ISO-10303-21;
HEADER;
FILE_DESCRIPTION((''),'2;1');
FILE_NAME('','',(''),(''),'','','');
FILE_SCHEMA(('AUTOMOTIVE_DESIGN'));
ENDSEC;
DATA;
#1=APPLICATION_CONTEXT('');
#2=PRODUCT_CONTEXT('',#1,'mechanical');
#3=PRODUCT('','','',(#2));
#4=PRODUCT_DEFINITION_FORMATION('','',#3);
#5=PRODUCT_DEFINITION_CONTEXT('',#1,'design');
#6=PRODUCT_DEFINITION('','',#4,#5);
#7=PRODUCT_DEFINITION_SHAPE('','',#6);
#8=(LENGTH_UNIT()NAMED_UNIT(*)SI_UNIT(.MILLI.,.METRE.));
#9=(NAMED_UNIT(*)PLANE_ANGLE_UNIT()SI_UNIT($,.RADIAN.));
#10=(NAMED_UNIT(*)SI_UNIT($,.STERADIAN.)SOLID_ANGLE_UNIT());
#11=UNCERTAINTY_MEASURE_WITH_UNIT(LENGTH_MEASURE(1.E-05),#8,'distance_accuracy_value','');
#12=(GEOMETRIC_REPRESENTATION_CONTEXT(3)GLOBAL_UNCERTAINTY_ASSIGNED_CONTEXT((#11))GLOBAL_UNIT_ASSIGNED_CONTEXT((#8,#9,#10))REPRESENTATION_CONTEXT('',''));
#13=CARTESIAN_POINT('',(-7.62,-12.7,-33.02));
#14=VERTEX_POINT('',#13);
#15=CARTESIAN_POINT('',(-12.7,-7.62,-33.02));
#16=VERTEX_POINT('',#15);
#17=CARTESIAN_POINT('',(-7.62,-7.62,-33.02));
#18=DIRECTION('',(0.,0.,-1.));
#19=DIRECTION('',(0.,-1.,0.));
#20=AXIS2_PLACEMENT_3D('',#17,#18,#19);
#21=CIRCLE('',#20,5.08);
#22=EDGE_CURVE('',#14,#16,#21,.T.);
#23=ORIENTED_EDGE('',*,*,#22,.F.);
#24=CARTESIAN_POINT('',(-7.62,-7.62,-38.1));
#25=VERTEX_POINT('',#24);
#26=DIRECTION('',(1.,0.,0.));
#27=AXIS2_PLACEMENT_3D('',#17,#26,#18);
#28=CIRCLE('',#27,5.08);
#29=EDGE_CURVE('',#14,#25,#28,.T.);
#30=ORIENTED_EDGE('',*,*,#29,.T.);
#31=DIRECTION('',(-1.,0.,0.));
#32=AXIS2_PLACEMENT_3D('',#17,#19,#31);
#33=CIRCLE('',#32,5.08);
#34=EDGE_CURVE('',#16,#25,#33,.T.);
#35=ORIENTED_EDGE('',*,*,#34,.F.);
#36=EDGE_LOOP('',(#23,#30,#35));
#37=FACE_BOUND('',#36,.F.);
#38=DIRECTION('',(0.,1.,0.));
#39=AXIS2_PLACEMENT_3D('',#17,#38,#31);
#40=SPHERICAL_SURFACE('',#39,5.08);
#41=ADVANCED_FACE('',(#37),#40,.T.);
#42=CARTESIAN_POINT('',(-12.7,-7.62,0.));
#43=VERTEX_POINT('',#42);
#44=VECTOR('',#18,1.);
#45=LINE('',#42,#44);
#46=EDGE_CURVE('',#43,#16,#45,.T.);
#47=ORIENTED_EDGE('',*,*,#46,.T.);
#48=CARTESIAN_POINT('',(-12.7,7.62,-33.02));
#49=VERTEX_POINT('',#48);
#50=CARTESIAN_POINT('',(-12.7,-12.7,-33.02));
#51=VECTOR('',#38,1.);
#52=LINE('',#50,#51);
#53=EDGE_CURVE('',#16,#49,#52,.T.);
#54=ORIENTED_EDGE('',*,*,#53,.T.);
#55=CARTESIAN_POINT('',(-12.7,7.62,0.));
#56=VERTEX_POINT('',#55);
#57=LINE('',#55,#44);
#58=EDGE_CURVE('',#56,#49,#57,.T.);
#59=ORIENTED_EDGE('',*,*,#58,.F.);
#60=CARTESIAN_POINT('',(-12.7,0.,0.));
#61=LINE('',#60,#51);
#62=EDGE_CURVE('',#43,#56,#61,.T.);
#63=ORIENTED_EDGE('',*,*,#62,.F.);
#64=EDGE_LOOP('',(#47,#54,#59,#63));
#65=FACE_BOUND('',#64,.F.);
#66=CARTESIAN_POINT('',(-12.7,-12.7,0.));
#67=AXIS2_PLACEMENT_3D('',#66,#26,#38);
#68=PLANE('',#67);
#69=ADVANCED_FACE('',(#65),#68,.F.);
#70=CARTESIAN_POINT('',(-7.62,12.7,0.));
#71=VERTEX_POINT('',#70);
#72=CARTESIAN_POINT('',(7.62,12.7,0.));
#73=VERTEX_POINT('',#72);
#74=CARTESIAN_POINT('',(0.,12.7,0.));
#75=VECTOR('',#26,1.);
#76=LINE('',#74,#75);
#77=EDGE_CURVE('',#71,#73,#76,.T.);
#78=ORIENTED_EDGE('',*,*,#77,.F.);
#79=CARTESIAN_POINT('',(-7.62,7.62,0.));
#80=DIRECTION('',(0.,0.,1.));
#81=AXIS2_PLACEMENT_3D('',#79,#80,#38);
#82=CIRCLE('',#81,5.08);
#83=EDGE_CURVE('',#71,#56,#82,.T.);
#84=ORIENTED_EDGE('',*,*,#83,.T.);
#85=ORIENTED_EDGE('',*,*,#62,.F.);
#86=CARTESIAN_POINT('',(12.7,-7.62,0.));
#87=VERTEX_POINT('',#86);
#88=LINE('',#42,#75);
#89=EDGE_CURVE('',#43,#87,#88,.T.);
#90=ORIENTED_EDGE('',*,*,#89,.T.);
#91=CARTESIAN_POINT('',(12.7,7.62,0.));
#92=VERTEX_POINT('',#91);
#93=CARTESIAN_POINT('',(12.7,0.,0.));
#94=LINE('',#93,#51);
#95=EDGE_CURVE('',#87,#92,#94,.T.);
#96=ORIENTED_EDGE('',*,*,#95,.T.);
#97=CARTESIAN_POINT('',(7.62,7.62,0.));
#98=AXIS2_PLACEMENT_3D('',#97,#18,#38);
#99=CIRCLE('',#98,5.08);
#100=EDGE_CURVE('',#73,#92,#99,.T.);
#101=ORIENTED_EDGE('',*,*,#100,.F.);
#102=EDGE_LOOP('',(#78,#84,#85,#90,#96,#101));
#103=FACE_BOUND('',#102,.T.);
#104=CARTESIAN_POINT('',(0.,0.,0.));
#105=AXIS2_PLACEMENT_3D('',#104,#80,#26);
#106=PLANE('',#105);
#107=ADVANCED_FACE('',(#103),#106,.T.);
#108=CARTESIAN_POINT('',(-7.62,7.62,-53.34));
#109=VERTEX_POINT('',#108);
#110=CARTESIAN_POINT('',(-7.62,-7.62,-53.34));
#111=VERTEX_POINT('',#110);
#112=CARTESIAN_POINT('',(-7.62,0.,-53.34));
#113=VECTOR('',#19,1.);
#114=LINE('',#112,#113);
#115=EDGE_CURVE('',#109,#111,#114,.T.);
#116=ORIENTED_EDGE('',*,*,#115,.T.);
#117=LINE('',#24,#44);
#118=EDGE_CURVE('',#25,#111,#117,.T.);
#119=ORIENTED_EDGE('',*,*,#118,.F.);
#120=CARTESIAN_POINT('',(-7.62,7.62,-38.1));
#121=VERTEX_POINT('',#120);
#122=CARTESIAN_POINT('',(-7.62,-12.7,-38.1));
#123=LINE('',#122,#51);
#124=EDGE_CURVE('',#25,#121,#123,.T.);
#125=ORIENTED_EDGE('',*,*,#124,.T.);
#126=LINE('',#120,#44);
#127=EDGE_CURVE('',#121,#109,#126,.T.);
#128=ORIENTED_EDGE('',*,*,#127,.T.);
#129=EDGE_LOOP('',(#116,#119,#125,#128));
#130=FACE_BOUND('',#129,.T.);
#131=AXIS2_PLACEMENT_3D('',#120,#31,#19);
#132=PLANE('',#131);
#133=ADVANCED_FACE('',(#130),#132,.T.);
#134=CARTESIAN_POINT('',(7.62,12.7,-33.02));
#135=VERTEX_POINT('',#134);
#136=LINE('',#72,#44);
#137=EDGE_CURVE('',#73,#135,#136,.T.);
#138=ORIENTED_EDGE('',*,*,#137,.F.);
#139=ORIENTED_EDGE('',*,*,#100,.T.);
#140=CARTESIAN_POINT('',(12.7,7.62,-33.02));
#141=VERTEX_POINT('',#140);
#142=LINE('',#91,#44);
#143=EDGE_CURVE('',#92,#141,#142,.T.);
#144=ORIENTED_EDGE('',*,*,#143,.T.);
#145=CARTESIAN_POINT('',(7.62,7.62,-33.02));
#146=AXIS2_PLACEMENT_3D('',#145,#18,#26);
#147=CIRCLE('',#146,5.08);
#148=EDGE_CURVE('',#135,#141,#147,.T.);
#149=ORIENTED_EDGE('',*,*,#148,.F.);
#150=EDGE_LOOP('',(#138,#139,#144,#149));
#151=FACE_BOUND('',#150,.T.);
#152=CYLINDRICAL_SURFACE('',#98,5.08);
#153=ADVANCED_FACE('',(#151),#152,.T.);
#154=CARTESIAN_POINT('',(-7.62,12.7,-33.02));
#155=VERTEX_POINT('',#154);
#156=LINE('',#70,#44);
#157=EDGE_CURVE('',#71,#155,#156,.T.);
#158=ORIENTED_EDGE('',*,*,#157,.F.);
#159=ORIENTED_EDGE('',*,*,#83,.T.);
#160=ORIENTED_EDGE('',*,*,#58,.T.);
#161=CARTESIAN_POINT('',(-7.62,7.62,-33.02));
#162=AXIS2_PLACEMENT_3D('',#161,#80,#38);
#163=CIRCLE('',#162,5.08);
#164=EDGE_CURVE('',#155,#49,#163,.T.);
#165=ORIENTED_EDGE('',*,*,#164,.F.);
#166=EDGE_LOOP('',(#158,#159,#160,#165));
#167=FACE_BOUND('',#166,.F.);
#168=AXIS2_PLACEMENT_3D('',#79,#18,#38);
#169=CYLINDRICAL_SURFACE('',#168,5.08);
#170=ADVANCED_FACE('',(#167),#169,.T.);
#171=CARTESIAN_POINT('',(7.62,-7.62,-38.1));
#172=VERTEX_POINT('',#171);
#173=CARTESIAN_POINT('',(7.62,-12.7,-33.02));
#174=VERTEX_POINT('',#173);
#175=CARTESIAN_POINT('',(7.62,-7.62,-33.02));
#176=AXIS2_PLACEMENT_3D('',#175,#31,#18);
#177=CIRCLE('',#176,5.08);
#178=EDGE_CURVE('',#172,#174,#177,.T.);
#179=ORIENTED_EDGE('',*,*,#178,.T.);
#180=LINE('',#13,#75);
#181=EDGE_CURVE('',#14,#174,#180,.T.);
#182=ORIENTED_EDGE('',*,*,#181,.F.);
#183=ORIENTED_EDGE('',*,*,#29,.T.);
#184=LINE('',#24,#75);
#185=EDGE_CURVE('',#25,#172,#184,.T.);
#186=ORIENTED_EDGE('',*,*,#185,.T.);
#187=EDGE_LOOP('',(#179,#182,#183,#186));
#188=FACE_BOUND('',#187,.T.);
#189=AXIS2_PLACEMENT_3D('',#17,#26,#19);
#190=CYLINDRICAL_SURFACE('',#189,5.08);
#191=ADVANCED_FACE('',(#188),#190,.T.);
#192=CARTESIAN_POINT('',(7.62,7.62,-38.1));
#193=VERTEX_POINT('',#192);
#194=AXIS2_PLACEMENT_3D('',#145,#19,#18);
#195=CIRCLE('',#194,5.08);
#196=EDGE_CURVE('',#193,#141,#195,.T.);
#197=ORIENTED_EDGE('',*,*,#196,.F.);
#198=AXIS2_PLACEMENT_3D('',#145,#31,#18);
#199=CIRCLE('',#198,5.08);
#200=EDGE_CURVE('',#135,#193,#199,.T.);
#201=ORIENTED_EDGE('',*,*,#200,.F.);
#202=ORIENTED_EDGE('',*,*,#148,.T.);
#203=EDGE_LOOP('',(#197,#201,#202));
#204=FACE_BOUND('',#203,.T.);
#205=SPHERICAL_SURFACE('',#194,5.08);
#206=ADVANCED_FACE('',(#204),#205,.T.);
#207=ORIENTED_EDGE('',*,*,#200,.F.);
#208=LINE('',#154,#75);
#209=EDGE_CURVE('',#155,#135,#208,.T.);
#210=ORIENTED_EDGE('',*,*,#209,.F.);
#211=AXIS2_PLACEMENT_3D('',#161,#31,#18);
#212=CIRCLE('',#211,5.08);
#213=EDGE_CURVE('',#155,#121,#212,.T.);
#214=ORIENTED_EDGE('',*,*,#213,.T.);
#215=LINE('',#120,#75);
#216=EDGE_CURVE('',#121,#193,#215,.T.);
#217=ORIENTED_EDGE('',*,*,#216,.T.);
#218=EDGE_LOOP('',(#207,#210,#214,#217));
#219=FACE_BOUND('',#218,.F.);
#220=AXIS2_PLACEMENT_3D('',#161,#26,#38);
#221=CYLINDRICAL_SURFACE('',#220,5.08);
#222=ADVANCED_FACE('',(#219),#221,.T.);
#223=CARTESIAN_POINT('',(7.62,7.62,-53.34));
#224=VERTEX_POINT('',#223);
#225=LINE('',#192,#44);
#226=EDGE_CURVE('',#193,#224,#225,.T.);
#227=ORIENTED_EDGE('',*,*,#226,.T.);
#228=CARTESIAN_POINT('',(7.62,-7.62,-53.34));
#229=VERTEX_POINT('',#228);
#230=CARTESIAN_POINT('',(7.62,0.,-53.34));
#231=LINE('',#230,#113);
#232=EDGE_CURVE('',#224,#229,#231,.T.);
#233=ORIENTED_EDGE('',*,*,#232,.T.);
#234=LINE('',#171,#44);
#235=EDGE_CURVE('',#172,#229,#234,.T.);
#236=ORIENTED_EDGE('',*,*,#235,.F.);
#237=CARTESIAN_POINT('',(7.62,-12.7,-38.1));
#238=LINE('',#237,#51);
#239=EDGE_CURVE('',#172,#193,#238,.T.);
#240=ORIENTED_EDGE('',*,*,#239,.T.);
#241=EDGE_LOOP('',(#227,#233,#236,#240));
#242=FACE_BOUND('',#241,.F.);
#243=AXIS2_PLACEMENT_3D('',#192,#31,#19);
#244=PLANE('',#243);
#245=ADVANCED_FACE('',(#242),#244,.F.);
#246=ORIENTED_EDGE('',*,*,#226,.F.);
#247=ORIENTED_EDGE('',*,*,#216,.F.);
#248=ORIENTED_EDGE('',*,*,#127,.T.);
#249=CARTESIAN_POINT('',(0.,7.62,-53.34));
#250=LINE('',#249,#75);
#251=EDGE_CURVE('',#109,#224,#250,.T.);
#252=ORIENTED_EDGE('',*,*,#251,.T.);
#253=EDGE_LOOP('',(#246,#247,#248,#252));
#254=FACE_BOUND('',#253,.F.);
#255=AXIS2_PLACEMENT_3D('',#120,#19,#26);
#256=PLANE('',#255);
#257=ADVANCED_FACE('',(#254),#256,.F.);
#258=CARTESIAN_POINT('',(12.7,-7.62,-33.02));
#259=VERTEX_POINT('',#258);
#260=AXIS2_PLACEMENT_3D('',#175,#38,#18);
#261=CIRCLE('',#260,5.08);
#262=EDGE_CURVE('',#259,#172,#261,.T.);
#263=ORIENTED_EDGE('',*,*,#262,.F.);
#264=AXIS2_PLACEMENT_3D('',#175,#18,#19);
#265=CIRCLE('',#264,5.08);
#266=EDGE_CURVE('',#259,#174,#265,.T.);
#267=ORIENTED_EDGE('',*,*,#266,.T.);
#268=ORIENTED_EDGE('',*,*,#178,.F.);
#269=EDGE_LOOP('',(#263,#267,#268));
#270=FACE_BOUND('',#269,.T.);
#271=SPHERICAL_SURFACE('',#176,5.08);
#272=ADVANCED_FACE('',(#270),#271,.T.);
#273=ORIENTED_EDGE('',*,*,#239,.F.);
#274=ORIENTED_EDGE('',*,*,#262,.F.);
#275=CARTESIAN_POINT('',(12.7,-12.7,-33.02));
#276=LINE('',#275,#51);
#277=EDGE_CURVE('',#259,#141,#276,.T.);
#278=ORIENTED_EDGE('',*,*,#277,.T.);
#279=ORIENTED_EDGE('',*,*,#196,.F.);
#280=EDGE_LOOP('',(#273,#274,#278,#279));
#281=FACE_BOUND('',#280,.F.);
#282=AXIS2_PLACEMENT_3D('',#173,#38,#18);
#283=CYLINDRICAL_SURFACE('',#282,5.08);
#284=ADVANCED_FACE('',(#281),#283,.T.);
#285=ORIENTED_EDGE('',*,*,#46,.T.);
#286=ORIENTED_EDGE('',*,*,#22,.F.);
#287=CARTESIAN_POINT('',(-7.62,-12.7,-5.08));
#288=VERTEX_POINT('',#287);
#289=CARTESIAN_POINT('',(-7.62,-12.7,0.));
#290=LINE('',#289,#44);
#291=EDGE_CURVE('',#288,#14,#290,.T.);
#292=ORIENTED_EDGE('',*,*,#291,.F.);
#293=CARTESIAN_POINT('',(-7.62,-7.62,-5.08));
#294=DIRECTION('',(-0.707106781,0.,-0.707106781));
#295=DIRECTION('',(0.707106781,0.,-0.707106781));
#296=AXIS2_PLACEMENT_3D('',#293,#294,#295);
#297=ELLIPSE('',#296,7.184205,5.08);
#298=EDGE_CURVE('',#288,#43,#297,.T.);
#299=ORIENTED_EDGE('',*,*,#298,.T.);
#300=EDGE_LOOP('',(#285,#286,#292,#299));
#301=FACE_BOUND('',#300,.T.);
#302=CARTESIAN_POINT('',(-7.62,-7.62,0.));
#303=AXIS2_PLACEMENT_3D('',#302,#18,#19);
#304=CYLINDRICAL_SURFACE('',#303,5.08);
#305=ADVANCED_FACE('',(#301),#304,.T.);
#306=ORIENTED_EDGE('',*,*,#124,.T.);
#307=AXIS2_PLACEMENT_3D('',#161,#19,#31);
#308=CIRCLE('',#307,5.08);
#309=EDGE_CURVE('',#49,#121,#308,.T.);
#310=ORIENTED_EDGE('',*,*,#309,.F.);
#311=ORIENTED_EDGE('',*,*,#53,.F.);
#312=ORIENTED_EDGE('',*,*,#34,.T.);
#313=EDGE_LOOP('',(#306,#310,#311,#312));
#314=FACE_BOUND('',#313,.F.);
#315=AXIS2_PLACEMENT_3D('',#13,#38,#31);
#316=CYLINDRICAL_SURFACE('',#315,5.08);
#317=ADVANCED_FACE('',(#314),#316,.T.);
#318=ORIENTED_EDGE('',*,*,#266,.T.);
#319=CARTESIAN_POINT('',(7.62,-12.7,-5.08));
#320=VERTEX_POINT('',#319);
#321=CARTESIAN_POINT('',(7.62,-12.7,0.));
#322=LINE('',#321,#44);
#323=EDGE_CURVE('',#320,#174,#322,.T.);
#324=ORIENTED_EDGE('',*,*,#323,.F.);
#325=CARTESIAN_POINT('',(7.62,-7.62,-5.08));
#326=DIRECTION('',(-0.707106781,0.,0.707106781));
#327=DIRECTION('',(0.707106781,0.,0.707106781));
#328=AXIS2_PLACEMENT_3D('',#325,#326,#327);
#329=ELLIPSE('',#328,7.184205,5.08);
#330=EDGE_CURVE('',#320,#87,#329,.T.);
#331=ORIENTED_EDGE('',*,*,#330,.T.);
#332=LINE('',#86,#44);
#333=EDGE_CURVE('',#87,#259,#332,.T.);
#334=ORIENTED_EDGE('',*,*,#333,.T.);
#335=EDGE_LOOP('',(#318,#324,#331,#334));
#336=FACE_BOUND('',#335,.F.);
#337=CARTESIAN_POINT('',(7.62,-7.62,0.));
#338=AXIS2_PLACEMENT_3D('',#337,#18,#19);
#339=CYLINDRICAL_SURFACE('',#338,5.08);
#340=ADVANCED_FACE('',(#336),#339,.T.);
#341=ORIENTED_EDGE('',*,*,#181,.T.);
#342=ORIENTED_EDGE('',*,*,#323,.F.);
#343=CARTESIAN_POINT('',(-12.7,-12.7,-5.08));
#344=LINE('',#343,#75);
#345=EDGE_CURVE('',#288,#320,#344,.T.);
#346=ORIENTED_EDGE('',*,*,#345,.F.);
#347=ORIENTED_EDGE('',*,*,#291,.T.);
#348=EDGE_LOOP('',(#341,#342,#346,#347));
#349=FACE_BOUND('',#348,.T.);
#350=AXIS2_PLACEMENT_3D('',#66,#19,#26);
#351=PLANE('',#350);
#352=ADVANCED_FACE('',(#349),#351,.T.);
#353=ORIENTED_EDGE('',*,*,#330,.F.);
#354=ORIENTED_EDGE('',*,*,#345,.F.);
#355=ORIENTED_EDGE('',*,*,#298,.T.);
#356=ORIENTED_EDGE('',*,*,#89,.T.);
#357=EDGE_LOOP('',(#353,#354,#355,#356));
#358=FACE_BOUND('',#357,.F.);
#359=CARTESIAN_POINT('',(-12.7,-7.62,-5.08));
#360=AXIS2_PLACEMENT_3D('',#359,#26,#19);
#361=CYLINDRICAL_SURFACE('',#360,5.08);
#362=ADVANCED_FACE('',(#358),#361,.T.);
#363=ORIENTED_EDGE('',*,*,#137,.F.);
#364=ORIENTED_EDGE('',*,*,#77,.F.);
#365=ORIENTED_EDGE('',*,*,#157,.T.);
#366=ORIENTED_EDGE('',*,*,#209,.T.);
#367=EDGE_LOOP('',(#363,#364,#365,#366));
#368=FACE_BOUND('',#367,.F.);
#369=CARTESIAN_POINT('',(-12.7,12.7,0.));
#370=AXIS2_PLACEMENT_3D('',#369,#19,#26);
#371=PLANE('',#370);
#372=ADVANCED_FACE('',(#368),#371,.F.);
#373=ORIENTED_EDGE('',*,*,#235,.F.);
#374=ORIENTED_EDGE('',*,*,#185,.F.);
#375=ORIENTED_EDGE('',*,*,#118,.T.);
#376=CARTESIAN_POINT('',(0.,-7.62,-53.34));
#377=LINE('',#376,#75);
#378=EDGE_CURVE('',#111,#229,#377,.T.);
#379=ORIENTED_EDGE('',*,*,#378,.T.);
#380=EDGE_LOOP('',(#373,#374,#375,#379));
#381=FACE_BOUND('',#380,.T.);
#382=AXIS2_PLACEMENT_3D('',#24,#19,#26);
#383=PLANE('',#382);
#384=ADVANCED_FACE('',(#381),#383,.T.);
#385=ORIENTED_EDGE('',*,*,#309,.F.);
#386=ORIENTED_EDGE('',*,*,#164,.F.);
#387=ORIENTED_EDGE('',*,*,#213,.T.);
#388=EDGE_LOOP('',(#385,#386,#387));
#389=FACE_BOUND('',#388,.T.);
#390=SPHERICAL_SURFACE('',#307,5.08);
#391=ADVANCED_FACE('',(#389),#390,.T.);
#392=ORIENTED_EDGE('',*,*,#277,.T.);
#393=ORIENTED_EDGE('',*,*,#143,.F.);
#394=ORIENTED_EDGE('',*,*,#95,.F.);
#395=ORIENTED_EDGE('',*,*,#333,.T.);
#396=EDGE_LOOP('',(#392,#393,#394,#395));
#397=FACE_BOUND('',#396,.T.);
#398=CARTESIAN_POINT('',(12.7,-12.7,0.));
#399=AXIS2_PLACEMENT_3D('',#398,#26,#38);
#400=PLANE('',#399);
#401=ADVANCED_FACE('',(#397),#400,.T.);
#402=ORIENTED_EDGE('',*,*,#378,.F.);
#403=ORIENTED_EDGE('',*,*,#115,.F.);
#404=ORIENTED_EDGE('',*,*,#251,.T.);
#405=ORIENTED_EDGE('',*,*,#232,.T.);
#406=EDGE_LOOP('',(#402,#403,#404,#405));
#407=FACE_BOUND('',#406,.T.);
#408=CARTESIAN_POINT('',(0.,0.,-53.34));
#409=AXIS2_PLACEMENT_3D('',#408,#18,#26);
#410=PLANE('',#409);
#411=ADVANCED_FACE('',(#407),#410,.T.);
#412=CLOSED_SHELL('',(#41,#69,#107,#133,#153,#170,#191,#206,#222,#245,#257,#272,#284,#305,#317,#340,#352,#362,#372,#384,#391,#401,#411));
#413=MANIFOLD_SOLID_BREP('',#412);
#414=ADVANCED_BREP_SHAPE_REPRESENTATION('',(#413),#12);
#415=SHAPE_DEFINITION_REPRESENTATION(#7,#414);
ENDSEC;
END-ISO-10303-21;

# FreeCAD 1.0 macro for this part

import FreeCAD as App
import Part
import Sketcher

V = App.Vector
Q = App.Units.Quantity


def edges_at(feature, points):
    """Names of the edges that pass closest to the given points."""
    edges = feature.Shape.Edges
    near = lambda p: min(range(len(edges)), key=lambda i: edges[i].distToShape(Part.Vertex(*p))[0])
    return sorted({f"Edge{near(p) + 1}" for p in points})

doc = App.newDocument("Part")
body = doc.addObject("PartDesign::Body", "Body")

# Sketch on XY plane
sketch1 = body.newObject("Sketcher::SketchObject", "Sketch")
sketch1.AttachmentSupport = (doc.getObject("XY_Plane"), [""])
sketch1.MapMode = "FlatFace"
sketch1.addGeometry(Part.LineSegment(V(-13, 13, 0), V(-13, -13, 0)), False)
sketch1.addGeometry(Part.LineSegment(V(-13, -13, 0), V(13, -13, 0)), False)
sketch1.addGeometry(Part.LineSegment(V(13, -13, 0), V(13, 13, 0)), False)
sketch1.addGeometry(Part.LineSegment(V(13, 13, 0), V(-13, 13, 0)), False)
sketch1.addConstraint(Sketcher.Constraint("Coincident", 0, 2, 1, 1))
sketch1.addConstraint(Sketcher.Constraint("Coincident", 1, 2, 2, 1))
sketch1.addConstraint(Sketcher.Constraint("Coincident", 2, 2, 3, 1))
sketch1.addConstraint(Sketcher.Constraint("Coincident", 3, 2, 0, 1))
sketch1.addConstraint(Sketcher.Constraint("Vertical", 0))
sketch1.addConstraint(Sketcher.Constraint("Horizontal", 1))
sketch1.addConstraint(Sketcher.Constraint("Vertical", 2))
sketch1.addConstraint(Sketcher.Constraint("Horizontal", 3))
sketch1.addConstraint(Sketcher.Constraint("Symmetric", 0, 2, 2, 2, -1, 1))
sketch1.addConstraint(Sketcher.Constraint("Equal", 3, 0))
sketch1.addConstraint(Sketcher.Constraint("DistanceX", 1, 1, 1, 2, Q("1 in")))
pad1 = body.newObject("PartDesign::Pad", "Pad")
pad1.Profile = sketch1
pad1.Length = Q("1.5 in")
pad1.Reversed = True
doc.recompute()

fillet = body.newObject("PartDesign::Fillet", "Fillet")
fillet.Base = (pad1, edges_at(pad1, [(-12.7, 0, -38.1)]))
fillet.Radius = Q("0.2 in")
doc.recompute()

fillet2 = body.newObject("PartDesign::Fillet", "Fillet001")
fillet2.Base = (fillet, edges_at(fillet, [
    (2.54, -12.7, -38.1),
    (-7.62, 0, -38.1),
    (12.7, 0, -38.1),
    (2.54, 12.7, -38.1),
    (-12.7, -12.7, -16.51),
    (-11.212, -12.7, -36.612),
    (0, -12.7, 0),
    (12.7, -12.7, -19.05),
    (12.7, 12.7, -19.05),
]))
fillet2.Radius = Q("0.2 in")

# Sketch on XY plane
sketch2 = body.newObject("Sketcher::SketchObject", "Sketch001")
sketch2.AttachmentSupport = (doc.getObject("XY_Plane"), [""])
sketch2.MapMode = "FlatFace"
sketch2.AttachmentOffset = App.Placement(V(0, 0, -1.5 * 25.4), App.Rotation())
sketch2.addGeometry(Part.LineSegment(V(-8, -8, 0), V(-8, 8, 0)), False)
sketch2.addGeometry(Part.LineSegment(V(-8, 8, 0), V(8, 8, 0)), False)
sketch2.addGeometry(Part.LineSegment(V(8, 8, 0), V(8, -8, 0)), False)
sketch2.addGeometry(Part.LineSegment(V(8, -8, 0), V(-8, -8, 0)), False)
sketch2.addConstraint(Sketcher.Constraint("Coincident", 0, 2, 1, 1))
sketch2.addConstraint(Sketcher.Constraint("Coincident", 1, 2, 2, 1))
sketch2.addConstraint(Sketcher.Constraint("Coincident", 2, 2, 3, 1))
sketch2.addConstraint(Sketcher.Constraint("Coincident", 3, 2, 0, 1))
sketch2.addConstraint(Sketcher.Constraint("Vertical", 0))
sketch2.addConstraint(Sketcher.Constraint("Horizontal", 1))
sketch2.addConstraint(Sketcher.Constraint("Vertical", 2))
sketch2.addConstraint(Sketcher.Constraint("Horizontal", 3))
sketch2.addConstraint(Sketcher.Constraint("Symmetric", 0, 2, 2, 2, -1, 1))
sketch2.addConstraint(Sketcher.Constraint("Equal", 3, 0))
sketch2.addConstraint(Sketcher.Constraint("DistanceX", 1, 1, 1, 2, Q("0.6 in")))
pad2 = body.newObject("PartDesign::Pad", "Pad001")
pad2.Profile = sketch2
pad2.Length = Q("0.6 in")
pad2.Reversed = True

doc.recompute()
